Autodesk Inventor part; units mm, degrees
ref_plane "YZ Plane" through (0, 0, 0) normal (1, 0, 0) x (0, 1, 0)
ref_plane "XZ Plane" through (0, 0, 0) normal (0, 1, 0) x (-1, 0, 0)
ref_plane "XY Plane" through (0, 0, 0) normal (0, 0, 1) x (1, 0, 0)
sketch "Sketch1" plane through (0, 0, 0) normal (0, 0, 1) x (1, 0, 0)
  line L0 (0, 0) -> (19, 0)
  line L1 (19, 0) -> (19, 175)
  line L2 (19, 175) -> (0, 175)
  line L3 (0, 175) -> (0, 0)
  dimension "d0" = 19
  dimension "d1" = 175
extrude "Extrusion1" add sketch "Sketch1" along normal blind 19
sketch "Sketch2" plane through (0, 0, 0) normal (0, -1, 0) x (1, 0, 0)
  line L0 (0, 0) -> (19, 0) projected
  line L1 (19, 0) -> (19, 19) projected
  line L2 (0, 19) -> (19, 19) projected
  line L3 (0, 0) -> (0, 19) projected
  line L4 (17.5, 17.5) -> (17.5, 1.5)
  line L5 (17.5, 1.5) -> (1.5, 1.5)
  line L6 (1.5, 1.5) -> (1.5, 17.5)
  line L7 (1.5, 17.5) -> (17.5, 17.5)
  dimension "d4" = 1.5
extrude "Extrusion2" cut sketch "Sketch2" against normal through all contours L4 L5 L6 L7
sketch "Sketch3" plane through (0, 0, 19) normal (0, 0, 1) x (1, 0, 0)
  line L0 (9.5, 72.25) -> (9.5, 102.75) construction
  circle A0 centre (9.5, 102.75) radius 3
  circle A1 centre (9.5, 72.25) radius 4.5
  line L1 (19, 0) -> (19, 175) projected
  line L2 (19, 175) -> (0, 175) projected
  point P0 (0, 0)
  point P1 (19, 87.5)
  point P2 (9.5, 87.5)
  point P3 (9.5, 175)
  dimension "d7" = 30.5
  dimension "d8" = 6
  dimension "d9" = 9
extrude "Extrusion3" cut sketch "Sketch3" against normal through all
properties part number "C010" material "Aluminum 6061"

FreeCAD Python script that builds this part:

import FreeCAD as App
import Part
import Sketcher
from FreeCAD import Vector
Q = App.Units.Quantity

doc = App.newDocument("Part")
params = doc.addObject("Spreadsheet::Sheet", "Params")
for row, (alias, value) in enumerate([
    ("sketch1_width", "19 mm"),
    ("sketch1_height", "175 mm"),
    ("pad1_length", "19 mm"),
    ("sketch2_width", "16 mm"),
    ("sketch3_diameter", "6 mm"),
    ("sketch3_diameter2", "9 mm"),
], start=1):
    params.set(f"A{row}", alias)
    params.set(f"B{row}", "=" + value)
    params.setAlias(f"B{row}", alias)

body = doc.addObject("PartDesign::Body", "Body")

# Sketch on XY plane
sketch1 = body.newObject("Sketcher::SketchObject", "Sketch")
sketch1.AttachmentSupport = (doc.getObject("XY_Plane"), [""])
sketch1.MapMode = "FlatFace"
sketch1.addGeometry([
    Part.LineSegment(Vector(0, 175, 0), Vector(0, 0, 0)),
    Part.LineSegment(Vector(0, 0, 0), Vector(19, 0, 0)),
    Part.LineSegment(Vector(19, 0, 0), Vector(19, 175, 0)),
    Part.LineSegment(Vector(19, 175, 0), Vector(0, 175, 0)),
], False)
sketch1.addConstraint([
    Sketcher.Constraint("Coincident", 0, 2, 1, 1),
    Sketcher.Constraint("Coincident", 1, 2, 2, 1),
    Sketcher.Constraint("Coincident", 2, 2, 3, 1),
    Sketcher.Constraint("Coincident", 3, 2, 0, 1),
    Sketcher.Constraint("Vertical", 0),
    Sketcher.Constraint("Horizontal", 1),
    Sketcher.Constraint("Vertical", 2),
    Sketcher.Constraint("Horizontal", 3),
    Sketcher.Constraint("Coincident", 0, 2, -1, 1),
    Sketcher.Constraint("DistanceX", 1, 1, 1, 2, Q("19 mm")),
    Sketcher.Constraint("DistanceY", 0, 2, 0, 1, Q("175 mm")),
])
sketch1.setExpression("Constraints[9]", "Params.sketch1_width")
sketch1.setExpression("Constraints[10]", "Params.sketch1_height")
pad1 = body.newObject("PartDesign::Pad", "Pad")
pad1.Profile = sketch1
pad1.setExpression("Length", "Params.pad1_length")

# Sketch on XZ plane
sketch2 = body.newObject("Sketcher::SketchObject", "Sketch001")
sketch2.AttachmentSupport = (doc.getObject("XZ_Plane"), [""])
sketch2.MapMode = "FlatFace"
sketch2.addGeometry([
    Part.LineSegment(Vector(18, 2, 0), Vector(18, 18, 0)),
    Part.LineSegment(Vector(18, 18, 0), Vector(2, 18, 0)),
    Part.LineSegment(Vector(2, 18, 0), Vector(2, 2, 0)),
    Part.LineSegment(Vector(2, 2, 0), Vector(18, 2, 0)),
], False)
sketch2.addConstraint([
    Sketcher.Constraint("Coincident", 0, 2, 1, 1),
    Sketcher.Constraint("Coincident", 1, 2, 2, 1),
    Sketcher.Constraint("Coincident", 2, 2, 3, 1),
    Sketcher.Constraint("Coincident", 3, 2, 0, 1),
    Sketcher.Constraint("Vertical", 0),
    Sketcher.Constraint("Horizontal", 1),
    Sketcher.Constraint("Vertical", 2),
    Sketcher.Constraint("Horizontal", 3),
    Sketcher.Constraint("Equal", 3, 0),
    Sketcher.Constraint("DistanceX", -1, 1, 1, 2, Q("1.5 mm")),
    Sketcher.Constraint("DistanceY", -1, 1, 2, 2, Q("1.5 mm")),
    Sketcher.Constraint("DistanceX", 1, 2, 1, 1, Q("16 mm")),
])
sketch2.setExpression("Constraints[11]", "Params.sketch2_width")
pocket1 = body.newObject("PartDesign::Pocket", "Pocket")
pocket1.Profile = sketch2
pocket1.Type = "ThroughAll"

# Sketch on XY plane
sketch3 = body.newObject("Sketcher::SketchObject", "Sketch002")
sketch3.AttachmentSupport = (doc.getObject("XY_Plane"), [""])
sketch3.MapMode = "FlatFace"
sketch3.AttachmentOffset = App.Placement(Vector(0, 0, 19), App.Rotation())
sketch3.addGeometry([
    Part.Circle(Vector(9.5, 102.8, 0), Vector(0, 0, 1), 3),
    Part.Circle(Vector(9.5, 72.2, 0), Vector(0, 0, 1), 4.5),
], False)
sketch3.addConstraint([
    Sketcher.Constraint("Vertical", 0, 3, 1, 3),
    Sketcher.Constraint("Diameter", 0, Q("6 mm")),
    Sketcher.Constraint("Diameter", 1, Q("9 mm")),
    Sketcher.Constraint("DistanceY", 1, 3, 0, 3, Q("30.5 mm")),
    Sketcher.Constraint("DistanceX", -1, 1, 0, 3, Q("9.5 mm")),
    Sketcher.Constraint("DistanceY", -1, 1, 0, 3, Q("102.75 mm")),
])
sketch3.setExpression("Constraints[1]", "Params.sketch3_diameter")
sketch3.setExpression("Constraints[2]", "Params.sketch3_diameter2")
pocket2 = body.newObject("PartDesign::Pocket", "Pocket001")
pocket2.Profile = sketch3
pocket2.Type = "ThroughAll"

doc.recompute()
